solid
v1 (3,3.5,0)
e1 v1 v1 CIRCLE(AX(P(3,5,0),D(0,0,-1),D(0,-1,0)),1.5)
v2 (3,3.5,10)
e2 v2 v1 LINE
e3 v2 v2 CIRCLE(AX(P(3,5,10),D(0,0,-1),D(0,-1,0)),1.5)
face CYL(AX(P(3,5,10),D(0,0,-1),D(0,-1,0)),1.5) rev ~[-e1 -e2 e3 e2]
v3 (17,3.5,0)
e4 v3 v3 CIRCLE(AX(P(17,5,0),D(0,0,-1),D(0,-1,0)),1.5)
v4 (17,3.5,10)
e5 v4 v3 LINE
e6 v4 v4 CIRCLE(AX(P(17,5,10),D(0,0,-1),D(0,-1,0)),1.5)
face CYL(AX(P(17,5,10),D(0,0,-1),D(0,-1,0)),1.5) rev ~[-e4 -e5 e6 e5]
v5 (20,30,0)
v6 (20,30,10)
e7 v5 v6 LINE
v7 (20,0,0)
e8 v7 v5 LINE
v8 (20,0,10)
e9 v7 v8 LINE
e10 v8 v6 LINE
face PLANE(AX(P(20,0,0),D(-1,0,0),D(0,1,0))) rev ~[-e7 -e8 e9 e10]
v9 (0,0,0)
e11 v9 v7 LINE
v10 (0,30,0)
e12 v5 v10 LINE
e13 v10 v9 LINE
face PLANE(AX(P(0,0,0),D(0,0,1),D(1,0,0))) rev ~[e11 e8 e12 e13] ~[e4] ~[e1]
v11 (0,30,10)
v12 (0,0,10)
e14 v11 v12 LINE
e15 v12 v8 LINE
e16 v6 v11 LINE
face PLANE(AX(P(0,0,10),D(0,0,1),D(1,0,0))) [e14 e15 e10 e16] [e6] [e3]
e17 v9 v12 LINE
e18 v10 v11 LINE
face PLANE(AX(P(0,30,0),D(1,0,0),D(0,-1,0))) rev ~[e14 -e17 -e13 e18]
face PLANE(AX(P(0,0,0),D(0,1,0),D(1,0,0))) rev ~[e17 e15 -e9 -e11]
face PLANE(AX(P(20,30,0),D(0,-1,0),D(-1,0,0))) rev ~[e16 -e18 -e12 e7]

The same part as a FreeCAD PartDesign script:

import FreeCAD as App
import Part
import Sketcher
from FreeCAD import Vector

doc = App.newDocument("Part")
params = doc.addObject("Spreadsheet::Sheet", "Params")
for row, (alias, value) in enumerate([
    ("sketch1_width", "20 mm"),
    ("sketch1_height", "30 mm"),
    ("pad1_length", "10 mm"),
    ("sketch2_diameter", "3 mm"),
    ("hole_diameter", "3 mm"),
], start=1):
    params.set(f"A{row}", alias)
    params.set(f"B{row}", "=" + value)
    params.setAlias(f"B{row}", alias)

body = doc.addObject("PartDesign::Body", "Body")

# Sketch on XY plane
sketch1 = doc.addObject("Sketcher::SketchObject", "Sketch")
body.addObject(sketch1)
sketch1.AttachmentSupport = (doc.XY_Plane, [""])
sketch1.MapMode = "FlatFace"
sketch1.addGeometry([
    Part.LineSegment(Vector(0, 30, 0), Vector(0, 0, 0)),
    Part.LineSegment(Vector(0, 0, 0), Vector(20, 0, 0)),
    Part.LineSegment(Vector(20, 0, 0), Vector(20, 30, 0)),
    Part.LineSegment(Vector(20, 30, 0), Vector(0, 30, 0)),
], False)
sketch1.addConstraint([
    Sketcher.Constraint("Coincident", 0, 2, 1, 1),
    Sketcher.Constraint("Coincident", 1, 2, 2, 1),
    Sketcher.Constraint("Coincident", 2, 2, 3, 1),
    Sketcher.Constraint("Coincident", 3, 2, 0, 1),
    Sketcher.Constraint("Vertical", 0),
    Sketcher.Constraint("Horizontal", 1),
    Sketcher.Constraint("Vertical", 2),
    Sketcher.Constraint("Horizontal", 3),
    Sketcher.Constraint("Coincident", 0, 2, -1, 1),
    Sketcher.Constraint("DistanceX", 1, 1, 1, 2, 20.0),
    Sketcher.Constraint("DistanceY", 0, 2, 0, 1, 30.0),
])
sketch1.setExpression("Constraints[9]", "Params.sketch1_width")
sketch1.setExpression("Constraints[10]", "Params.sketch1_height")
pad1 = doc.addObject("PartDesign::Pad", "Pad")
body.addObject(pad1)
pad1.Profile = sketch1
pad1.setExpression("Length", "Params.pad1_length")

# Sketch on XY plane
sketch2 = doc.addObject("Sketcher::SketchObject", "Sketch001")
body.addObject(sketch2)
sketch2.AttachmentSupport = (doc.XY_Plane, [""])
sketch2.MapMode = "FlatFace"
sketch2.AttachmentOffset = App.Placement(Vector(0, 0, 10), App.Rotation())
sketch2.addGeometry([
    Part.Circle(Vector(3, 5, 0), Vector(0, 0, 1), 1.5),
    Part.Circle(Vector(17, 5, 0), Vector(0, 0, 1), 1.5),
], False)
sketch2.addConstraint([
    Sketcher.Constraint("Equal", 0, 1),
    Sketcher.Constraint("Horizontal", 0, 3, 1, 3),
    Sketcher.Constraint("Diameter", 0, 3.0),
    Sketcher.Constraint("DistanceX", -1, 1, 0, 3, 3.0),
    Sketcher.Constraint("DistanceY", -1, 1, 0, 3, 5.0),
    Sketcher.Constraint("DistanceX", -1, 1, 1, 3, 17.0),
])
sketch2.setExpression("Constraints[2]", "Params.sketch2_diameter")
doc.recompute()
hole = doc.addObject("PartDesign::Hole", "Hole")
body.addObject(hole)
hole.Profile = sketch2
hole.ThreadType = "None"
hole.setExpression("Diameter", "Params.hole_diameter")
hole.DepthType = "ThroughAll"

doc.recompute()
